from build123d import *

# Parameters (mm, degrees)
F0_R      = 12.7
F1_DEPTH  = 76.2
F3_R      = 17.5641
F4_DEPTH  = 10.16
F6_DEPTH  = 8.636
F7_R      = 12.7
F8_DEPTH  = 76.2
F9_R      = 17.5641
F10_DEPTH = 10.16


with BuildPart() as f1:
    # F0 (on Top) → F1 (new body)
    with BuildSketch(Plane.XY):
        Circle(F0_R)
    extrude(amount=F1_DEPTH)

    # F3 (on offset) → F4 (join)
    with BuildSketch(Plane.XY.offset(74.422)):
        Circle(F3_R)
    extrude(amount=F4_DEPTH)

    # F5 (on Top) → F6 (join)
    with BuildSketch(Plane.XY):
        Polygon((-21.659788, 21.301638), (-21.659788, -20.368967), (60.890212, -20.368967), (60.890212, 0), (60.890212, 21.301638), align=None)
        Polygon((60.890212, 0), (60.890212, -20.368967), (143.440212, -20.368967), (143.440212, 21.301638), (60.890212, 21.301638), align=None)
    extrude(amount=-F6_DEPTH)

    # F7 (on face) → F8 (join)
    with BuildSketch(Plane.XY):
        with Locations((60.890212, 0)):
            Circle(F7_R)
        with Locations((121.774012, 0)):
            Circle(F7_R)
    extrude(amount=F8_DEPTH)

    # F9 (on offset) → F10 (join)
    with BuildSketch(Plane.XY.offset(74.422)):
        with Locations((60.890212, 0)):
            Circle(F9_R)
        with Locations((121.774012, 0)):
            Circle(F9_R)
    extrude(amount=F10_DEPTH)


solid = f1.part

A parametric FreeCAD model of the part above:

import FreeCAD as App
import Part
import Sketcher
Q = App.Units.Quantity


def add_polygon(sketch, points):
    """Adds a closed chain of lines whose ends are joined by coincident constraints."""
    first, n = sketch.GeometryCount, len(points)
    for a, b in zip(points, points[1:] + points[:1]):
        sketch.addGeometry(Part.LineSegment(App.Vector(*a, 0), App.Vector(*b, 0)), False)
    for i in range(n):
        sketch.addConstraint(Sketcher.Constraint("Coincident", first + i, 2, first + (i + 1) % n, 1))

doc = App.newDocument("Part")
body = doc.addObject("PartDesign::Body", "Body")

# Sketch on XY plane
sketch1 = doc.addObject("Sketcher::SketchObject", "Sketch")
body.addObject(sketch1)
sketch1.AttachmentSupport = (doc.XY_Plane, [""])
sketch1.MapMode = "FlatFace"
sketch1.addGeometry(Part.Circle(App.Vector(0, 0, 0), App.Vector(0, 0, 1), 13), False)
sketch1.addConstraint(Sketcher.Constraint("Coincident", 0, 3, -1, 1))
sketch1.addConstraint(Sketcher.Constraint("Diameter", 0, Q("1 in")))
pad1 = doc.addObject("PartDesign::Pad", "Pad")
body.addObject(pad1)
pad1.Profile = sketch1
pad1.Length = Q("3 in")

# Sketch on XY plane
sketch2 = doc.addObject("Sketcher::SketchObject", "Sketch001")
body.addObject(sketch2)
sketch2.AttachmentSupport = (doc.XY_Plane, [""])
sketch2.MapMode = "FlatFace"
sketch2.AttachmentOffset = App.Placement(App.Vector(0, 0, 2.93 * 25.4), App.Rotation())
sketch2.addGeometry(Part.Circle(App.Vector(0, 0, 0), App.Vector(0, 0, 1), 18), False)
sketch2.addConstraint(Sketcher.Constraint("Coincident", 0, 3, -1, 1))
sketch2.addConstraint(Sketcher.Constraint("Diameter", 0, Q("1.383 in")))
pad2 = doc.addObject("PartDesign::Pad", "Pad001")
body.addObject(pad2)
pad2.Profile = sketch2
pad2.Length = Q("0.4 in")

# Sketch on XY plane
sketch3 = doc.addObject("Sketcher::SketchObject", "Sketch002")
body.addObject(sketch3)
sketch3.AttachmentSupport = (doc.XY_Plane, [""])
sketch3.MapMode = "FlatFace"
add_polygon(sketch3, [(-22, 21), (-22, -20), (143, -20), (143, 21)])  # lines 0-3
sketch3.addConstraint(Sketcher.Constraint("Vertical", 0))
sketch3.addConstraint(Sketcher.Constraint("Horizontal", 1))
sketch3.addConstraint(Sketcher.Constraint("Vertical", 2))
sketch3.addConstraint(Sketcher.Constraint("Horizontal", 3))
sketch3.addConstraint(Sketcher.Constraint("DistanceX", 1, 1, 1, 2, Q("6.5 in")))
sketch3.addConstraint(Sketcher.Constraint("DistanceY", 0, 2, 0, 1, 41.670605))
sketch3.addConstraint(Sketcher.Constraint("DistanceX", -1, 1, 1, 2, 143.440212))
sketch3.addConstraint(Sketcher.Constraint("DistanceY", -1, 1, 2, 2, 21.301638))
pad3 = doc.addObject("PartDesign::Pad", "Pad002")
body.addObject(pad3)
pad3.Profile = sketch3
pad3.Length = Q("0.34 in")
pad3.Reversed = True

# Sketch on XY plane
sketch4 = doc.addObject("Sketcher::SketchObject", "Sketch003")
body.addObject(sketch4)
sketch4.AttachmentSupport = (doc.XY_Plane, [""])
sketch4.MapMode = "FlatFace"
sketch4.addGeometry(Part.Circle(App.Vector(61, 0, 0), App.Vector(0, 0, 1), 13), False)
sketch4.addGeometry(Part.Circle(App.Vector(122, 0, 0), App.Vector(0, 0, 1), 13), False)
sketch4.addConstraint(Sketcher.Constraint("Equal", 0, 1))
sketch4.addConstraint(Sketcher.Constraint("PointOnObject", 0, 3, -1))
sketch4.addConstraint(Sketcher.Constraint("PointOnObject", 1, 3, -1))
sketch4.addConstraint(Sketcher.Constraint("Diameter", 0, Q("1 in")))
sketch4.addConstraint(Sketcher.Constraint("DistanceX", 0, 3, 1, 3, Q("2.397 in")))
sketch4.addConstraint(Sketcher.Constraint("DistanceX", -1, 1, 0, 3, 60.890212))
pad4 = doc.addObject("PartDesign::Pad", "Pad003")
body.addObject(pad4)
pad4.Profile = sketch4
pad4.Length = Q("3 in")

# Sketch on XY plane
sketch5 = doc.addObject("Sketcher::SketchObject", "Sketch004")
body.addObject(sketch5)
sketch5.AttachmentSupport = (doc.XY_Plane, [""])
sketch5.MapMode = "FlatFace"
sketch5.AttachmentOffset = App.Placement(App.Vector(0, 0, 2.93 * 25.4), App.Rotation())
sketch5.addGeometry(Part.Circle(App.Vector(61, 0, 0), App.Vector(0, 0, 1), 18), False)
sketch5.addGeometry(Part.Circle(App.Vector(122, 0, 0), App.Vector(0, 0, 1), 18), False)
sketch5.addConstraint(Sketcher.Constraint("Equal", 0, 1))
sketch5.addConstraint(Sketcher.Constraint("PointOnObject", 0, 3, -1))
sketch5.addConstraint(Sketcher.Constraint("PointOnObject", 1, 3, -1))
sketch5.addConstraint(Sketcher.Constraint("Diameter", 0, Q("1.383 in")))
sketch5.addConstraint(Sketcher.Constraint("DistanceX", 0, 3, 1, 3, Q("2.397 in")))
sketch5.addConstraint(Sketcher.Constraint("DistanceX", -1, 1, 0, 3, 60.890212))
pad5 = doc.addObject("PartDesign::Pad", "Pad004")
body.addObject(pad5)
pad5.Profile = sketch5
pad5.Length = Q("0.4 in")

doc.recompute()
